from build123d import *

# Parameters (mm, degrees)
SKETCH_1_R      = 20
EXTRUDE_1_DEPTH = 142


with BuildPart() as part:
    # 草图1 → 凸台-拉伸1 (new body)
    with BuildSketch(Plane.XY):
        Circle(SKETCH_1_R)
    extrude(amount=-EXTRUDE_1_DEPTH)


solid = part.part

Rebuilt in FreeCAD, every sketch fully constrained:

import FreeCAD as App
import Part
import Sketcher
from FreeCAD import Vector
Q = App.Units.Quantity

doc = App.newDocument("Part")
body = doc.addObject("PartDesign::Body", "Body")

# Sketch on XY plane
sketch1 = doc.addObject("Sketcher::SketchObject", "Sketch")
body.addObject(sketch1)
sketch1.AttachmentSupport = (doc.XY_Plane, [""])
sketch1.MapMode = "FlatFace"
sketch1.addGeometry(Part.Circle(Vector(0, 0, 0), Vector(0, 0, 1), 20), False)
sketch1.addConstraint([
    Sketcher.Constraint("Coincident", 0, 3, -1, 1),
    Sketcher.Constraint("Diameter", 0, Q("40 mm")),
])
pad1 = doc.addObject("PartDesign::Pad", "Pad")
body.addObject(pad1)
pad1.Profile = sketch1
pad1.Length = 142
pad1.Reversed = True

doc.recompute()
